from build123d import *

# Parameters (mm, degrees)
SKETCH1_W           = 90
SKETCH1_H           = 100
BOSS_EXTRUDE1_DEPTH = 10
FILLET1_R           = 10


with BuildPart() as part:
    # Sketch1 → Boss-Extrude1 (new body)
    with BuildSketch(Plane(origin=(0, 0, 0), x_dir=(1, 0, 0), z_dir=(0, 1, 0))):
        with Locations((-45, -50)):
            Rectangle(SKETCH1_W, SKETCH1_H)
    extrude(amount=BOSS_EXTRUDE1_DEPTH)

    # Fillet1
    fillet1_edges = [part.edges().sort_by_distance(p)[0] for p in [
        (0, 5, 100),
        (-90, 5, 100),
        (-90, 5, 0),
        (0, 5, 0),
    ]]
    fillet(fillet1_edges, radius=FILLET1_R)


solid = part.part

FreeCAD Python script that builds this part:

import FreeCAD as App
import Part
import Sketcher
Q = App.Units.Quantity


def edges_at(feature, points):
    """Names of the edges that pass closest to the given points."""
    edges = feature.Shape.Edges
    near = lambda p: min(range(len(edges)), key=lambda i: edges[i].distToShape(Part.Vertex(*p))[0])
    return sorted({f"Edge{near(p) + 1}" for p in points})


def add_polygon(sketch, points):
    """Adds a closed chain of lines whose ends are joined by coincident constraints."""
    first, n = sketch.GeometryCount, len(points)
    for a, b in zip(points, points[1:] + points[:1]):
        sketch.addGeometry(Part.LineSegment(App.Vector(*a, 0), App.Vector(*b, 0)), False)
    for i in range(n):
        sketch.addConstraint(Sketcher.Constraint("Coincident", first + i, 2, first + (i + 1) % n, 1))

doc = App.newDocument("Part")
body = doc.addObject("PartDesign::Body", "Body")

sketch1 = body.newObject("Sketcher::SketchObject", "Sketch")
sketch1.AttachmentSupport = (doc.getObject("XZ_Plane"), [""])
sketch1.MapMode = "FlatFace"
add_polygon(sketch1, [(-90, 0), (-90, 100), (0, 100), (0, 0)])
sketch1.addConstraint(Sketcher.Constraint("Vertical", 0))
sketch1.addConstraint(Sketcher.Constraint("Horizontal", 1))
sketch1.addConstraint(Sketcher.Constraint("Vertical", 2))
sketch1.addConstraint(Sketcher.Constraint("Horizontal", 3))
sketch1.addConstraint(Sketcher.Constraint("Coincident", 2, 2, -1, 1))
sketch1.addConstraint(Sketcher.Constraint("DistanceX", 1, 1, 1, 2, Q("90 mm")))
sketch1.addConstraint(Sketcher.Constraint("DistanceY", 0, 1, 0, 2, Q("100 mm")))
pad1 = body.newObject("PartDesign::Pad", "Pad")
pad1.Profile = sketch1
pad1.Length = 10
pad1.Reversed = True
doc.recompute()

fillet = body.newObject("PartDesign::Fillet", "Fillet")
fillet.Base = (pad1, edges_at(pad1, [
    (0, 5, 100),
    (-90, 5, 100),
    (-90, 5, 0),
    (0, 5, 0),
]))
fillet.Radius = 10

doc.recompute()
